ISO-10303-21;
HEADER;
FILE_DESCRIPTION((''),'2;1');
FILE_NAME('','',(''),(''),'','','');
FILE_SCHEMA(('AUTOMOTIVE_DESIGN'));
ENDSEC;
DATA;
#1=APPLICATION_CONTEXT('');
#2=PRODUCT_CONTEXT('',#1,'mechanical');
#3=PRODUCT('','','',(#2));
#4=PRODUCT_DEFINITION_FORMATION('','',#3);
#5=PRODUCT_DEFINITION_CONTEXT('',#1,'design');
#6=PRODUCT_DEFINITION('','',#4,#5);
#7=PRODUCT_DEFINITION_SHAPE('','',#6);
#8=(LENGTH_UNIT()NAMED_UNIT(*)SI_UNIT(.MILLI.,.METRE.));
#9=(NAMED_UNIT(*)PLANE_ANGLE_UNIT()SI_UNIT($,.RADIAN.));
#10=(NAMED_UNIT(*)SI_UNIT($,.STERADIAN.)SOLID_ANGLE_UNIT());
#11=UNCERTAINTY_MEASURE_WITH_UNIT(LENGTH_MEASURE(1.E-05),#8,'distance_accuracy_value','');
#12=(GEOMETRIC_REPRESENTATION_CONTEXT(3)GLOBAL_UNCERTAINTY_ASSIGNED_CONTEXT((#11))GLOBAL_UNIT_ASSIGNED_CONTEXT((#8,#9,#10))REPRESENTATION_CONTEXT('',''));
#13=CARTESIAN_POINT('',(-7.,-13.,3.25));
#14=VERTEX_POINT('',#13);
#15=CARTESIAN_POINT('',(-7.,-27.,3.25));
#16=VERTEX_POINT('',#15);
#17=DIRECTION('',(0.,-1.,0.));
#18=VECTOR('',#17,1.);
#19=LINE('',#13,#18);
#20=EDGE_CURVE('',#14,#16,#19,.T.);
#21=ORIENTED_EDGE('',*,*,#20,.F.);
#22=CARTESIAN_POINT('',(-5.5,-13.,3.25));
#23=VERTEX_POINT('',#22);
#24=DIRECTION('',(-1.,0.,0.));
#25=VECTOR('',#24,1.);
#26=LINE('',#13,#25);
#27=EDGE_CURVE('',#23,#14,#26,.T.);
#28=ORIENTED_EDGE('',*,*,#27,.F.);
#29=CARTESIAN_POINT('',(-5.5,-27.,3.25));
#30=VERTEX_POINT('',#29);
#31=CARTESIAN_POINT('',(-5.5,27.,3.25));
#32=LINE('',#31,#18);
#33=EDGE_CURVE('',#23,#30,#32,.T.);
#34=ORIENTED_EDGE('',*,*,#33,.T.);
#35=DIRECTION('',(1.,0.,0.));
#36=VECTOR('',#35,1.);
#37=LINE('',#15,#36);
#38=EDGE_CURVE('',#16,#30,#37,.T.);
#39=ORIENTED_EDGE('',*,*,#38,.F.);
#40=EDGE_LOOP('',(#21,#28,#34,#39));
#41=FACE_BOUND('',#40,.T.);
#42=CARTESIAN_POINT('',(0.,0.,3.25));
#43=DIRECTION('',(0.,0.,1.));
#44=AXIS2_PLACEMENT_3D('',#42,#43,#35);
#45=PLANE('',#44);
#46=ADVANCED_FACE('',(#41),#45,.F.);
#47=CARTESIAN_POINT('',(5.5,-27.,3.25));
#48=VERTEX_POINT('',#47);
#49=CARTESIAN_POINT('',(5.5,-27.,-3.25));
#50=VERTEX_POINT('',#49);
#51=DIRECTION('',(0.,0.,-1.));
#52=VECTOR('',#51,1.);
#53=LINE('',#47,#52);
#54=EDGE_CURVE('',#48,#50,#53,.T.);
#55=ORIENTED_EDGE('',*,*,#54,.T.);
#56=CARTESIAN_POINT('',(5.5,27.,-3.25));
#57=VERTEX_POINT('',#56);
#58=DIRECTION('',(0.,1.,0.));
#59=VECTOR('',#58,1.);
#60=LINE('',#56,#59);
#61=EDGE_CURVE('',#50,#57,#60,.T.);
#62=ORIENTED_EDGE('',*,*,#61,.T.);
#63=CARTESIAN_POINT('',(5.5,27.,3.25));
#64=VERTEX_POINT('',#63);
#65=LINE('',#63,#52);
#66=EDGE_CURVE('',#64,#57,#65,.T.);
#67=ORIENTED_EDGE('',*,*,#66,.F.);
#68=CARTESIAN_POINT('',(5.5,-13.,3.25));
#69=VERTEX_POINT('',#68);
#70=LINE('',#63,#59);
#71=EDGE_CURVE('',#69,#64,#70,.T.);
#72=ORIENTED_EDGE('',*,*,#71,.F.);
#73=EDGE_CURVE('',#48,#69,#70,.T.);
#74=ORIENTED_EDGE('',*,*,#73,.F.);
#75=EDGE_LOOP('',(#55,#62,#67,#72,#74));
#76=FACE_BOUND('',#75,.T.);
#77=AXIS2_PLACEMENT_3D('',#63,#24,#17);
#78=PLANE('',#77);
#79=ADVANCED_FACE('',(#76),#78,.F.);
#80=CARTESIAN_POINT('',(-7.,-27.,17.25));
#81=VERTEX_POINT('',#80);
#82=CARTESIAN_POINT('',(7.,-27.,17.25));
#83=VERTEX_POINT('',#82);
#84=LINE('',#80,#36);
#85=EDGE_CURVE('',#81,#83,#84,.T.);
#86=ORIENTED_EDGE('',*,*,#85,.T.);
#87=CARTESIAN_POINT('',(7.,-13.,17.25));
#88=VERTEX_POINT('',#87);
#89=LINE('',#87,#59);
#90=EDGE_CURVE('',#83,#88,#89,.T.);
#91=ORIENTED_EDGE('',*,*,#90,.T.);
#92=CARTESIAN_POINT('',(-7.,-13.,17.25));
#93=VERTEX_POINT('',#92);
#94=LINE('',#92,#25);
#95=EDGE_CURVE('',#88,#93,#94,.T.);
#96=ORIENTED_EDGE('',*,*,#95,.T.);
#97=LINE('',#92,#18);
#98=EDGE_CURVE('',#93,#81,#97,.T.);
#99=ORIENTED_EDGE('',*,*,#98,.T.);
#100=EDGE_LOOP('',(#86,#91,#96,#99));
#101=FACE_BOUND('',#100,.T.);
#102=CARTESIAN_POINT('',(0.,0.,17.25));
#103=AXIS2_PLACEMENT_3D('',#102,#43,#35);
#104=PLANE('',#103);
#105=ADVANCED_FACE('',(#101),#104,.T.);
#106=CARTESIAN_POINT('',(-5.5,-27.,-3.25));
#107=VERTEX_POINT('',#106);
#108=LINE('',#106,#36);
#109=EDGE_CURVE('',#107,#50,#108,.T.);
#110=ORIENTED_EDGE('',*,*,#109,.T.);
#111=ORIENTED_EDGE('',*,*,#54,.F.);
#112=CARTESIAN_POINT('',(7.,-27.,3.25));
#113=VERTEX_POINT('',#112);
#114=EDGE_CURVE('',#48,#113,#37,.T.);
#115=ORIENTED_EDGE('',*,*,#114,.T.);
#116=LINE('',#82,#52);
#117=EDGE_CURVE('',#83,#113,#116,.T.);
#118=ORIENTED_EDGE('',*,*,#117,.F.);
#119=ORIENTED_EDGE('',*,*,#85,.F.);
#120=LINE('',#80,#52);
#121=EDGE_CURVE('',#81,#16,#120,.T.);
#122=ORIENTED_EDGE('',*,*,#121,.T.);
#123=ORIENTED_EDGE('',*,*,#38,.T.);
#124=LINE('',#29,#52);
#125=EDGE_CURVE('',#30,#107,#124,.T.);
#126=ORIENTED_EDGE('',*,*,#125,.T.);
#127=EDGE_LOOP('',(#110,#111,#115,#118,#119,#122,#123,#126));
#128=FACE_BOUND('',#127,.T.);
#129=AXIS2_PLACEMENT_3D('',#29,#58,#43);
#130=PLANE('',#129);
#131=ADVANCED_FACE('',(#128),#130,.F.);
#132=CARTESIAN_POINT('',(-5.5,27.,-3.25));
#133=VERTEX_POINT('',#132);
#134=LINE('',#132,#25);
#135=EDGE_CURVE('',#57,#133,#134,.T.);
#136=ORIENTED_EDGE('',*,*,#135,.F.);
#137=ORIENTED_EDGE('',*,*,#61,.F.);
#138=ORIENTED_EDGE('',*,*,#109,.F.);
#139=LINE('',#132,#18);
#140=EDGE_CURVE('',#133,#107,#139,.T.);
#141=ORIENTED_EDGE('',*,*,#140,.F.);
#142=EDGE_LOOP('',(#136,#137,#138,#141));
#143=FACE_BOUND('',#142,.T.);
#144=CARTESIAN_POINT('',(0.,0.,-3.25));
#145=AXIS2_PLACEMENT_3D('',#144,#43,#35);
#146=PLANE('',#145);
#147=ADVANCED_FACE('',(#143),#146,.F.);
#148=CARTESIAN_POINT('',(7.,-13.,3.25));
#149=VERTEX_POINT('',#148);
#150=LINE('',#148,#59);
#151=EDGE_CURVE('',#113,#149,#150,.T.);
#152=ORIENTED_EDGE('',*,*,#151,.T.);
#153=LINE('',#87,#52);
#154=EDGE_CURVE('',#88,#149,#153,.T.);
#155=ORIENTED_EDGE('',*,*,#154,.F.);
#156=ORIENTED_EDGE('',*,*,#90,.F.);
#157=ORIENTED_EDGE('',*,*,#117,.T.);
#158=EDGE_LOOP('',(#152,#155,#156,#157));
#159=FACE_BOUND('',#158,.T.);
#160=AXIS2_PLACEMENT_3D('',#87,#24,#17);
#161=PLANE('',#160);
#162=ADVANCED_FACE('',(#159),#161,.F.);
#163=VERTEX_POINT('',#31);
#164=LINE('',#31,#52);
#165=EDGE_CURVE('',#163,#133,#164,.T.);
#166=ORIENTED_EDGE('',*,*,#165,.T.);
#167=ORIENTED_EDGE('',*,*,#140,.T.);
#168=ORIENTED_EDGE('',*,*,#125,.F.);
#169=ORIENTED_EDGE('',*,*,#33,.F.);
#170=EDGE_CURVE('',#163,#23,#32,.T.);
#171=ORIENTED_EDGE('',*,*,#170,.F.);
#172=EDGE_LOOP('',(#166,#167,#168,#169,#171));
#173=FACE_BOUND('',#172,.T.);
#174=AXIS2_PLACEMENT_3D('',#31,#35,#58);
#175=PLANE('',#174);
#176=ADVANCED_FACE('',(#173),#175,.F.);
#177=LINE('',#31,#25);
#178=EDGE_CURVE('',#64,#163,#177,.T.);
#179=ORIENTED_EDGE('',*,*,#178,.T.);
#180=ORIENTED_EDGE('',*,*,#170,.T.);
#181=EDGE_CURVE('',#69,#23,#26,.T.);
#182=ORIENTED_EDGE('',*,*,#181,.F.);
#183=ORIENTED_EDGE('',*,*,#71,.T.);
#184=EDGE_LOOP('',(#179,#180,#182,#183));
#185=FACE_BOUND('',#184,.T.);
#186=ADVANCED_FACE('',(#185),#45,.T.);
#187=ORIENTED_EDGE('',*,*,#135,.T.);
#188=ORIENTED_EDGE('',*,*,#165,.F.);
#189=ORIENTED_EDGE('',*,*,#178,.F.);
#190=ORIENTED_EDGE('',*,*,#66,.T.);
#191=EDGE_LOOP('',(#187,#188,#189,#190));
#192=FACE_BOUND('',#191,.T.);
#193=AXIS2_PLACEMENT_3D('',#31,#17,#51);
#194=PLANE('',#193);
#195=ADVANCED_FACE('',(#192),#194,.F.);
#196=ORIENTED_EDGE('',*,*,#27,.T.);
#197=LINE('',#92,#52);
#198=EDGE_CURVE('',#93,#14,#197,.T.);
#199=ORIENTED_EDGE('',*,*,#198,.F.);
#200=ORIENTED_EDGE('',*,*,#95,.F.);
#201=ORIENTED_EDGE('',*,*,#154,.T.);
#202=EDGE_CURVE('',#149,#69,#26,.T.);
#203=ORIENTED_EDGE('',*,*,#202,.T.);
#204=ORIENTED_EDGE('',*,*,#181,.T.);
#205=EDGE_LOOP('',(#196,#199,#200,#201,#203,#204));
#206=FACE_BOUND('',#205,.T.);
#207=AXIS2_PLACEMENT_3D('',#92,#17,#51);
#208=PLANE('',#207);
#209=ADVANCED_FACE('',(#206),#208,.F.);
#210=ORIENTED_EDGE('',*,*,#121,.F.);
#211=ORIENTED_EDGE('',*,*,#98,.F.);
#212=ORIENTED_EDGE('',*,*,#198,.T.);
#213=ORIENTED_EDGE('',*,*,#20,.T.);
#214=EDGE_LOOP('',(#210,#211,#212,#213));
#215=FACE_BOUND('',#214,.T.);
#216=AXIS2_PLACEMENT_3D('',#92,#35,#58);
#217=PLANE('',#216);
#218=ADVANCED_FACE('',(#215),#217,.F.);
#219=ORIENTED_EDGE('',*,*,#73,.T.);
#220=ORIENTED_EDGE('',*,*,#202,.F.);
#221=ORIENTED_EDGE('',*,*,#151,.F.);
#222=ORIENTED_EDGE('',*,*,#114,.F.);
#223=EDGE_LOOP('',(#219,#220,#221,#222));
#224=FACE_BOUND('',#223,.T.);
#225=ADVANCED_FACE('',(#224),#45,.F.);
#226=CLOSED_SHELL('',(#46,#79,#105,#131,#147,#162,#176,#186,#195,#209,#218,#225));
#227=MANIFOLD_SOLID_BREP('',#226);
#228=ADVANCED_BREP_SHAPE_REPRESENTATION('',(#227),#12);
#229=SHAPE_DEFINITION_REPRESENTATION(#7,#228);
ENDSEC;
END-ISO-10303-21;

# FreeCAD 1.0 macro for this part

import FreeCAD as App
import Part
import Sketcher

doc = App.newDocument("Part")
body = doc.addObject("PartDesign::Body", "Body")

# Sketch on XY plane
sketch1 = body.newObject("Sketcher::SketchObject", "Sketch")
sketch1.AttachmentSupport = (doc.getObject("XY_Plane"), [""])
sketch1.MapMode = "FlatFace"
sketch1.addGeometry([
    Part.LineSegment(App.Vector(-6, 27, 0), App.Vector(-6, -27, 0)),
    Part.LineSegment(App.Vector(-6, -27, 0), App.Vector(6, -27, 0)),
    Part.LineSegment(App.Vector(6, -27, 0), App.Vector(6, 27, 0)),
    Part.LineSegment(App.Vector(6, 27, 0), App.Vector(-6, 27, 0)),
], False)
sketch1.addConstraint([
    Sketcher.Constraint("Coincident", 0, 2, 1, 1),
    Sketcher.Constraint("Coincident", 1, 2, 2, 1),
    Sketcher.Constraint("Coincident", 2, 2, 3, 1),
    Sketcher.Constraint("Coincident", 3, 2, 0, 1),
    Sketcher.Constraint("Vertical", 0),
    Sketcher.Constraint("Horizontal", 1),
    Sketcher.Constraint("Vertical", 2),
    Sketcher.Constraint("Horizontal", 3),
    Sketcher.Constraint("Symmetric", 0, 2, 2, 2, -1, 1),
    Sketcher.Constraint("DistanceX", 1, 1, 1, 2, 11.0),
    Sketcher.Constraint("DistanceY", 0, 2, 0, 1, 54.0),
])
pad1 = body.newObject("PartDesign::Pad", "Pad")
pad1.Profile = sketch1
pad1.Length = 6.5
pad1.Midplane = True

# Sketch on XY plane
sketch2 = body.newObject("Sketcher::SketchObject", "Sketch001")
sketch2.AttachmentSupport = (doc.getObject("XY_Plane"), [""])
sketch2.MapMode = "FlatFace"
sketch2.AttachmentOffset = App.Placement(App.Vector(0, 0, 3.25), App.Rotation())
sketch2.addGeometry([
    Part.LineSegment(App.Vector(-7, -13, 0), App.Vector(-7, -27, 0)),
    Part.LineSegment(App.Vector(-7, -27, 0), App.Vector(7, -27, 0)),
    Part.LineSegment(App.Vector(7, -27, 0), App.Vector(7, -13, 0)),
    Part.LineSegment(App.Vector(7, -13, 0), App.Vector(-7, -13, 0)),
], False)
sketch2.addConstraint([
    Sketcher.Constraint("Coincident", 0, 2, 1, 1),
    Sketcher.Constraint("Coincident", 1, 2, 2, 1),
    Sketcher.Constraint("Coincident", 2, 2, 3, 1),
    Sketcher.Constraint("Coincident", 3, 2, 0, 1),
    Sketcher.Constraint("Vertical", 0),
    Sketcher.Constraint("Horizontal", 1),
    Sketcher.Constraint("Vertical", 2),
    Sketcher.Constraint("Horizontal", 3),
    Sketcher.Constraint("Equal", 3, 0),
    Sketcher.Constraint("DistanceX", 1, 1, 1, 2, 14.0),
    Sketcher.Constraint("DistanceX", 0, 2, -1, 1, 7.0),
    Sketcher.Constraint("DistanceY", 0, 2, -1, 1, 27.0),
])
pad2 = body.newObject("PartDesign::Pad", "Pad001")
pad2.Profile = sketch2
pad2.Length = 14

doc.recompute()
